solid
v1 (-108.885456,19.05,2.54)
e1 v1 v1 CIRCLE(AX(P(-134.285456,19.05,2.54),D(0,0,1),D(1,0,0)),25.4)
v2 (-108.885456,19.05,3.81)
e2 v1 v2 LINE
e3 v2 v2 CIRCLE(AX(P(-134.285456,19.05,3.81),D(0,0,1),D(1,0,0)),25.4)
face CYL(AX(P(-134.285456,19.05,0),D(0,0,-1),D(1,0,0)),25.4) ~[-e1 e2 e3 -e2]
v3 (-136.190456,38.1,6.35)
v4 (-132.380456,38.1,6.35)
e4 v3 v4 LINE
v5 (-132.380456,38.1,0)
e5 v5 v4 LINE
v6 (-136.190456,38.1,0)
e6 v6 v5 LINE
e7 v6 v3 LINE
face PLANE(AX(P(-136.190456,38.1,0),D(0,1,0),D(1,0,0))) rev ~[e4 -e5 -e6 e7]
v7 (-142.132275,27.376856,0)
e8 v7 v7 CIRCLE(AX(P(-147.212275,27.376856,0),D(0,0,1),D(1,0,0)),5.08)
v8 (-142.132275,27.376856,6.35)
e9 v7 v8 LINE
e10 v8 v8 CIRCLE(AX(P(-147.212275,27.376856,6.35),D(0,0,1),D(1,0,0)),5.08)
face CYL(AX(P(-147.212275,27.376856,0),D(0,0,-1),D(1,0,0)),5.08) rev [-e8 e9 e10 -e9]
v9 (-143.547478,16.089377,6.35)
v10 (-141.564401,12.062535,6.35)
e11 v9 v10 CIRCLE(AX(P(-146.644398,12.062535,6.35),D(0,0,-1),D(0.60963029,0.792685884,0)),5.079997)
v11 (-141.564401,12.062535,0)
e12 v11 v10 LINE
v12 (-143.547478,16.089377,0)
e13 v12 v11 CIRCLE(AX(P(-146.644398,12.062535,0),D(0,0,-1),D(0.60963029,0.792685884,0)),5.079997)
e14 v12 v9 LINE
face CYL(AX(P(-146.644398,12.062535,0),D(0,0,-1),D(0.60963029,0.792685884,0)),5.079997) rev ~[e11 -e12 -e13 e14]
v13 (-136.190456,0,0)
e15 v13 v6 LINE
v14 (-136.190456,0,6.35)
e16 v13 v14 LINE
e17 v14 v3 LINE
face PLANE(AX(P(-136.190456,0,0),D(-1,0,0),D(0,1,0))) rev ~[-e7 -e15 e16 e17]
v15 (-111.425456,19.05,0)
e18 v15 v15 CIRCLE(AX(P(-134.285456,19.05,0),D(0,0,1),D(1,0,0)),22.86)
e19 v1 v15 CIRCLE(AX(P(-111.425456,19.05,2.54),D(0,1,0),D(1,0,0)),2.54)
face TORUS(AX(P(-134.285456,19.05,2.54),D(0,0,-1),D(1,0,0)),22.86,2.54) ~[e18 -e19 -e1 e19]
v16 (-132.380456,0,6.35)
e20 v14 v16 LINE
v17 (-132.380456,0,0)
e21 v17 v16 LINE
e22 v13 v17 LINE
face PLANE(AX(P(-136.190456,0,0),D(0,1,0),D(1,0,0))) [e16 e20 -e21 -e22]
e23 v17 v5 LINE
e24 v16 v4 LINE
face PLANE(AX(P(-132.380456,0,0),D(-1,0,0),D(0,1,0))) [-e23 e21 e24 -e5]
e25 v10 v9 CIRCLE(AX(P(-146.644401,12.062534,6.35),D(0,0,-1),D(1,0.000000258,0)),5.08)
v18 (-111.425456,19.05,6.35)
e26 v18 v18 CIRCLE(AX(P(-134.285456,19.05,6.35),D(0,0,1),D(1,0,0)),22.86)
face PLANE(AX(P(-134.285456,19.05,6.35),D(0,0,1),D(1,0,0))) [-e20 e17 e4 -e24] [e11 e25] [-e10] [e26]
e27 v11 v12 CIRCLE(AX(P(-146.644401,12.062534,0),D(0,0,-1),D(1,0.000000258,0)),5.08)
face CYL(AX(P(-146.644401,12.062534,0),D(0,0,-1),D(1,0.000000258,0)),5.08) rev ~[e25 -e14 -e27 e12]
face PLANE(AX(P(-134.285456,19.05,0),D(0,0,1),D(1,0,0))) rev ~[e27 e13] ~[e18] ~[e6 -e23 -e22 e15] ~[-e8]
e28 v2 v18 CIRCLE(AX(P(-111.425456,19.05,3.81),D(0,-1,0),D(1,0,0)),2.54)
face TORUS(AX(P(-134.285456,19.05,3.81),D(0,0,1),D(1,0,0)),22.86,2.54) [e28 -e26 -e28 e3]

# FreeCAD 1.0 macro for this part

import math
import FreeCAD as App
import Part
import Sketcher
from FreeCAD import Vector
Q = App.Units.Quantity


def edges_at(feature, points):
    """Names of the edges that pass closest to the given points."""
    edges = feature.Shape.Edges
    near = lambda p: min(range(len(edges)), key=lambda i: edges[i].distToShape(Part.Vertex(*p))[0])
    return sorted({f"Edge{near(p) + 1}" for p in points})


def add_polygon(sketch, points):
    """Adds a closed chain of lines whose ends are joined by coincident constraints."""
    first, n = sketch.GeometryCount, len(points)
    for a, b in zip(points, points[1:] + points[:1]):
        sketch.addGeometry(Part.LineSegment(App.Vector(*a, 0), App.Vector(*b, 0)), False)
    for i in range(n):
        sketch.addConstraint(Sketcher.Constraint("Coincident", first + i, 2, first + (i + 1) % n, 1))

doc = App.newDocument("Part")
params = doc.addObject("Spreadsheet::Sheet", "Params")
for row, (alias, value) in enumerate([
    ("sketch1_diameter", "2 in"),
    ("sketch1_diameter2", "0.4 in"),
    ("sketch1_height", "1.5 in"),
    ("sketch1_width", "0.15 in"),
    ("pad1_length", "0.25 in"),
    ("fillet_radius", "0.1 in"),
], start=1):
    params.set(f"A{row}", alias)
    params.set(f"B{row}", "=" + value)
    params.setAlias(f"B{row}", alias)

body = doc.addObject("PartDesign::Body", "Body")

sketch1 = body.newObject("Sketcher::SketchObject", "Sketch")
sketch1.AttachmentSupport = (doc.getObject("XY_Plane"), [""])
sketch1.MapMode = "FlatFace"
sketch1.addGeometry(Part.Circle(Vector(-134.285456, 19.05, 0), Vector(0, 0, 1), 25.4), False)
sketch1.addGeometry(Part.ArcOfCircle(Part.Circle(Vector(-146.644401, 12.062534, 0), Vector(0, 0, 1), 5.08), math.radians(52.43721), math.radians(360.000015)), False)
sketch1.addGeometry(Part.ArcOfCircle(Part.Circle(Vector(-146.644398, 12.062535, 0), Vector(0, 0, 1), 5.079997), math.radians(0), math.radians(52.437225)), False)
sketch1.addGeometry(Part.Circle(Vector(-147.212275, 27.376856, 0), Vector(0, 0, 1), 5.08), False)
add_polygon(sketch1, [(-132.380456, 0), (-136.190456, 0), (-136.190456, 38.1), (-132.380456, 38.1)])
sketch1.addConstraint([
    Sketcher.Constraint("Tangent", 1, 1, 2, 2),
    Sketcher.Constraint("Coincident", 2, 1, 1, 2),
    Sketcher.Constraint("Horizontal", 4),
    Sketcher.Constraint("Vertical", 5),
    Sketcher.Constraint("Horizontal", 6),
    Sketcher.Constraint("Vertical", 7),
    Sketcher.Constraint("Equal", 1, 3),
    Sketcher.Constraint("PointOnObject", 4, 2, -1),
    Sketcher.Constraint("Horizontal", 1, 3, 2, 1),
    Sketcher.Constraint("Diameter", 0, Q("2 in")),
    Sketcher.Constraint("Diameter", 3, Q("0.4 in")),
    Sketcher.Constraint("DistanceY", 5, 1, 5, 2, Q("1.5 in")),
    Sketcher.Constraint("DistanceX", 4, 2, 4, 1, Q("0.15 in")),
    Sketcher.Constraint("DistanceY", -1, 1, 0, 3, Q("0.75 in")),
    Sketcher.Constraint("DistanceX", 4, 2, 0, 3, Q("0.075 in")),
    Sketcher.Constraint("DistanceX", 1, 3, -1, 1, 146.644401),
    Sketcher.Constraint("DistanceY", 2, 3, 3, 3, 15.314321),
    Sketcher.Constraint("DistanceX", 3, 3, 0, 3, 12.926819),
    Sketcher.Constraint("DistanceX", 2, 3, 1, 1, 3.09692),
    Sketcher.Constraint("DistanceX", 1, 1, 0, 3, 9.262022),
    Sketcher.Constraint("DistanceY", -1, 1, 1, 3, 12.062534),
])
sketch1.setExpression("Constraints[13]", "Params.sketch1_diameter")
sketch1.setExpression("Constraints[14]", "Params.sketch1_diameter2")
sketch1.setExpression("Constraints[15]", "Params.sketch1_height")
sketch1.setExpression("Constraints[16]", "Params.sketch1_width")
pad1 = body.newObject("PartDesign::Pad", "Pad")
pad1.Profile = sketch1
pad1.setExpression("Length", "Params.pad1_length")
doc.recompute()

fillet = body.newObject("PartDesign::Fillet", "Fillet")
fillet.Base = (pad1, edges_at(pad1, [(-159.685, 19.05, 6.35), (-159.685, 19.05, 0)]))
fillet.setExpression("Radius", "Params.fillet_radius")

doc.recompute()
